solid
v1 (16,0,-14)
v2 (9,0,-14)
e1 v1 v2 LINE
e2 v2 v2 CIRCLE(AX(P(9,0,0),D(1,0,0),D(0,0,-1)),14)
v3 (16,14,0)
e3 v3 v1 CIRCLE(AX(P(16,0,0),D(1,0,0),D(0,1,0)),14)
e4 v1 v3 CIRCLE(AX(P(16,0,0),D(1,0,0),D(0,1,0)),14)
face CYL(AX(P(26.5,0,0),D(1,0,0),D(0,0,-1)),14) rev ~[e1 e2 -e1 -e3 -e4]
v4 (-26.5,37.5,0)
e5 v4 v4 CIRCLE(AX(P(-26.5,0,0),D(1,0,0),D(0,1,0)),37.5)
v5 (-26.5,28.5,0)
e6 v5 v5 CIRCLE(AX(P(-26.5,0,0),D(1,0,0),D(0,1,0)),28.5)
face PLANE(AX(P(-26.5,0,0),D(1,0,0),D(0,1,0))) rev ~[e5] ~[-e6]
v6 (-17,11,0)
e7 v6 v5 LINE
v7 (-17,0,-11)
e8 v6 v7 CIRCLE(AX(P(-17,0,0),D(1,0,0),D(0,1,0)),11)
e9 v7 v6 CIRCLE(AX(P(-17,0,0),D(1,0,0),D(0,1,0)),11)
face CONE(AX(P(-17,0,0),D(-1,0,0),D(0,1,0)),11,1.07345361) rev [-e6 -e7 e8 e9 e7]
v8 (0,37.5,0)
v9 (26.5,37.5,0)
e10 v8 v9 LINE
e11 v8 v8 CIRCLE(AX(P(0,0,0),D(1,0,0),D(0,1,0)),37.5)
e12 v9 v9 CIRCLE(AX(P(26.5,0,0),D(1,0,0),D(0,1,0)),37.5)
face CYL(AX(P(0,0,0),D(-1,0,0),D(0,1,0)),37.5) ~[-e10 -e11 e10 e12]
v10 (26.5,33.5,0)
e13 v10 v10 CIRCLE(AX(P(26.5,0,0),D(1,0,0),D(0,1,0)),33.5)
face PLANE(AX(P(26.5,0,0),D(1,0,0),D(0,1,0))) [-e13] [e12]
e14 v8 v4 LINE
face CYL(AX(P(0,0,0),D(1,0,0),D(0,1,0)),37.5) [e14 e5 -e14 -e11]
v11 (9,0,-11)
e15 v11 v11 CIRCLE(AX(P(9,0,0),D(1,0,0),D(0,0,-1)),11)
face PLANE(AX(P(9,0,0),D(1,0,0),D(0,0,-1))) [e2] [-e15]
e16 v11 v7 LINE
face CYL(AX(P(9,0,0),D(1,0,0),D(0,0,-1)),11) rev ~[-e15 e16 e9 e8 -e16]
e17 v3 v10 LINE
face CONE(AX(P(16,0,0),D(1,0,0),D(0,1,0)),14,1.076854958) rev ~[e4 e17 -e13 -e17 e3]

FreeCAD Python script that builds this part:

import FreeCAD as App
import Part
import Sketcher
from FreeCAD import Vector


def add_polygon(sketch, points):
    """Adds a closed chain of lines whose ends are joined by coincident constraints."""
    first, n = sketch.GeometryCount, len(points)
    for a, b in zip(points, points[1:] + points[:1]):
        sketch.addGeometry(Part.LineSegment(App.Vector(*a, 0), App.Vector(*b, 0)), False)
    for i in range(n):
        sketch.addConstraint(Sketcher.Constraint("Coincident", first + i, 2, first + (i + 1) % n, 1))

doc = App.newDocument("Part")
body = doc.addObject("PartDesign::Body", "Body")

sketch1 = doc.addObject("Sketcher::SketchObject", "Sketch")
body.addObject(sketch1)
sketch1.AttachmentSupport = (doc.YZ_Plane, [""])
sketch1.MapMode = "FlatFace"
sketch1.addGeometry(Part.Circle(Vector(0, 0, 0), Vector(0, 0, 1), 37.5), False)
sketch1.addConstraint([
    Sketcher.Constraint("Coincident", 0, 3, -1, 1),
    Sketcher.Constraint("Diameter", 0, 75.0),
])
pad1 = doc.addObject("PartDesign::Pad", "Pad")
body.addObject(pad1)
pad1.Profile = sketch1
pad1.Length = 53
pad1.Midplane = True

sketch2 = doc.addObject("Sketcher::SketchObject", "Sketch001")
body.addObject(sketch2)
sketch2.AttachmentSupport = (doc.YZ_Plane, [""])
sketch2.MapMode = "FlatFace"
sketch2.AttachmentOffset = App.Placement(Vector(0, 0, 26.5), App.Rotation())
sketch2.addGeometry(Part.Circle(Vector(0, 0, 0), Vector(0, 0, 1), 14), False)
sketch2.addConstraint([
    Sketcher.Constraint("Coincident", 0, 3, -1, 1),
    Sketcher.Constraint("Diameter", 0, 28.0),
])
pocket1 = doc.addObject("PartDesign::Pocket", "Pocket")
body.addObject(pocket1)
pocket1.Profile = sketch2
pocket1.Length = 17.5

sketch3 = doc.addObject("Sketcher::SketchObject", "Sketch002")
body.addObject(sketch3)
sketch3.AttachmentSupport = (doc.XY_Plane, [""])
sketch3.MapMode = "FlatFace"
add_polygon(sketch3, [(26.5, 14), (26.5, 33.5), (16, 14)])
sketch3.addConstraint([
    Sketcher.Constraint("Vertical", 0),
    Sketcher.Constraint("Horizontal", 2),
    Sketcher.Constraint("DistanceX", 2, 1, 2, 2, 10.5),
    Sketcher.Constraint("DistanceY", 0, 1, 0, 2, 19.5),
    Sketcher.Constraint("DistanceX", -1, 1, 1, 2, 16.0),
    Sketcher.Constraint("DistanceY", -1, 1, 1, 2, 14.0),
])
groove = doc.addObject("PartDesign::Groove", "Groove")
body.addObject(groove)
groove.Profile = sketch3
groove.ReferenceAxis = (sketch3, ["H_Axis"])
groove.Angle = 360

sketch4 = doc.addObject("Sketcher::SketchObject", "Sketch003")
body.addObject(sketch4)
sketch4.AttachmentSupport = (doc.YZ_Plane, [""])
sketch4.MapMode = "FlatFace"
sketch4.AttachmentOffset = App.Placement(Vector(0, 0, 9), App.Rotation())
sketch4.addGeometry(Part.Circle(Vector(0, 0, 0), Vector(0, 0, 1), 11), False)
sketch4.addConstraint([
    Sketcher.Constraint("Coincident", 0, 3, -1, 1),
    Sketcher.Constraint("Diameter", 0, 22.0),
])
pocket2 = doc.addObject("PartDesign::Pocket", "Pocket001")
body.addObject(pocket2)
pocket2.Profile = sketch4
pocket2.Type = "ThroughAll"

sketch5 = doc.addObject("Sketcher::SketchObject", "Sketch004")
body.addObject(sketch5)
sketch5.AttachmentSupport = (doc.XY_Plane, [""])
sketch5.MapMode = "FlatFace"
add_polygon(sketch5, [(-17, 11), (-26.5, 28.5), (-26.5, 11)])
sketch5.addConstraint([
    Sketcher.Constraint("Vertical", 1),
    Sketcher.Constraint("Horizontal", 2),
    Sketcher.Constraint("DistanceX", 2, 1, 2, 2, 9.5),
    Sketcher.Constraint("DistanceY", 1, 2, 1, 1, 17.5),
    Sketcher.Constraint("DistanceY", -1, 1, 1, 2, 11.0),
    Sketcher.Constraint("DistanceX", 2, 2, -1, 1, 17.0),
])
groove2 = doc.addObject("PartDesign::Groove", "Groove001")
body.addObject(groove2)
groove2.Profile = sketch5
groove2.ReferenceAxis = (sketch5, ["H_Axis"])
groove2.Angle = 360

doc.recompute()
